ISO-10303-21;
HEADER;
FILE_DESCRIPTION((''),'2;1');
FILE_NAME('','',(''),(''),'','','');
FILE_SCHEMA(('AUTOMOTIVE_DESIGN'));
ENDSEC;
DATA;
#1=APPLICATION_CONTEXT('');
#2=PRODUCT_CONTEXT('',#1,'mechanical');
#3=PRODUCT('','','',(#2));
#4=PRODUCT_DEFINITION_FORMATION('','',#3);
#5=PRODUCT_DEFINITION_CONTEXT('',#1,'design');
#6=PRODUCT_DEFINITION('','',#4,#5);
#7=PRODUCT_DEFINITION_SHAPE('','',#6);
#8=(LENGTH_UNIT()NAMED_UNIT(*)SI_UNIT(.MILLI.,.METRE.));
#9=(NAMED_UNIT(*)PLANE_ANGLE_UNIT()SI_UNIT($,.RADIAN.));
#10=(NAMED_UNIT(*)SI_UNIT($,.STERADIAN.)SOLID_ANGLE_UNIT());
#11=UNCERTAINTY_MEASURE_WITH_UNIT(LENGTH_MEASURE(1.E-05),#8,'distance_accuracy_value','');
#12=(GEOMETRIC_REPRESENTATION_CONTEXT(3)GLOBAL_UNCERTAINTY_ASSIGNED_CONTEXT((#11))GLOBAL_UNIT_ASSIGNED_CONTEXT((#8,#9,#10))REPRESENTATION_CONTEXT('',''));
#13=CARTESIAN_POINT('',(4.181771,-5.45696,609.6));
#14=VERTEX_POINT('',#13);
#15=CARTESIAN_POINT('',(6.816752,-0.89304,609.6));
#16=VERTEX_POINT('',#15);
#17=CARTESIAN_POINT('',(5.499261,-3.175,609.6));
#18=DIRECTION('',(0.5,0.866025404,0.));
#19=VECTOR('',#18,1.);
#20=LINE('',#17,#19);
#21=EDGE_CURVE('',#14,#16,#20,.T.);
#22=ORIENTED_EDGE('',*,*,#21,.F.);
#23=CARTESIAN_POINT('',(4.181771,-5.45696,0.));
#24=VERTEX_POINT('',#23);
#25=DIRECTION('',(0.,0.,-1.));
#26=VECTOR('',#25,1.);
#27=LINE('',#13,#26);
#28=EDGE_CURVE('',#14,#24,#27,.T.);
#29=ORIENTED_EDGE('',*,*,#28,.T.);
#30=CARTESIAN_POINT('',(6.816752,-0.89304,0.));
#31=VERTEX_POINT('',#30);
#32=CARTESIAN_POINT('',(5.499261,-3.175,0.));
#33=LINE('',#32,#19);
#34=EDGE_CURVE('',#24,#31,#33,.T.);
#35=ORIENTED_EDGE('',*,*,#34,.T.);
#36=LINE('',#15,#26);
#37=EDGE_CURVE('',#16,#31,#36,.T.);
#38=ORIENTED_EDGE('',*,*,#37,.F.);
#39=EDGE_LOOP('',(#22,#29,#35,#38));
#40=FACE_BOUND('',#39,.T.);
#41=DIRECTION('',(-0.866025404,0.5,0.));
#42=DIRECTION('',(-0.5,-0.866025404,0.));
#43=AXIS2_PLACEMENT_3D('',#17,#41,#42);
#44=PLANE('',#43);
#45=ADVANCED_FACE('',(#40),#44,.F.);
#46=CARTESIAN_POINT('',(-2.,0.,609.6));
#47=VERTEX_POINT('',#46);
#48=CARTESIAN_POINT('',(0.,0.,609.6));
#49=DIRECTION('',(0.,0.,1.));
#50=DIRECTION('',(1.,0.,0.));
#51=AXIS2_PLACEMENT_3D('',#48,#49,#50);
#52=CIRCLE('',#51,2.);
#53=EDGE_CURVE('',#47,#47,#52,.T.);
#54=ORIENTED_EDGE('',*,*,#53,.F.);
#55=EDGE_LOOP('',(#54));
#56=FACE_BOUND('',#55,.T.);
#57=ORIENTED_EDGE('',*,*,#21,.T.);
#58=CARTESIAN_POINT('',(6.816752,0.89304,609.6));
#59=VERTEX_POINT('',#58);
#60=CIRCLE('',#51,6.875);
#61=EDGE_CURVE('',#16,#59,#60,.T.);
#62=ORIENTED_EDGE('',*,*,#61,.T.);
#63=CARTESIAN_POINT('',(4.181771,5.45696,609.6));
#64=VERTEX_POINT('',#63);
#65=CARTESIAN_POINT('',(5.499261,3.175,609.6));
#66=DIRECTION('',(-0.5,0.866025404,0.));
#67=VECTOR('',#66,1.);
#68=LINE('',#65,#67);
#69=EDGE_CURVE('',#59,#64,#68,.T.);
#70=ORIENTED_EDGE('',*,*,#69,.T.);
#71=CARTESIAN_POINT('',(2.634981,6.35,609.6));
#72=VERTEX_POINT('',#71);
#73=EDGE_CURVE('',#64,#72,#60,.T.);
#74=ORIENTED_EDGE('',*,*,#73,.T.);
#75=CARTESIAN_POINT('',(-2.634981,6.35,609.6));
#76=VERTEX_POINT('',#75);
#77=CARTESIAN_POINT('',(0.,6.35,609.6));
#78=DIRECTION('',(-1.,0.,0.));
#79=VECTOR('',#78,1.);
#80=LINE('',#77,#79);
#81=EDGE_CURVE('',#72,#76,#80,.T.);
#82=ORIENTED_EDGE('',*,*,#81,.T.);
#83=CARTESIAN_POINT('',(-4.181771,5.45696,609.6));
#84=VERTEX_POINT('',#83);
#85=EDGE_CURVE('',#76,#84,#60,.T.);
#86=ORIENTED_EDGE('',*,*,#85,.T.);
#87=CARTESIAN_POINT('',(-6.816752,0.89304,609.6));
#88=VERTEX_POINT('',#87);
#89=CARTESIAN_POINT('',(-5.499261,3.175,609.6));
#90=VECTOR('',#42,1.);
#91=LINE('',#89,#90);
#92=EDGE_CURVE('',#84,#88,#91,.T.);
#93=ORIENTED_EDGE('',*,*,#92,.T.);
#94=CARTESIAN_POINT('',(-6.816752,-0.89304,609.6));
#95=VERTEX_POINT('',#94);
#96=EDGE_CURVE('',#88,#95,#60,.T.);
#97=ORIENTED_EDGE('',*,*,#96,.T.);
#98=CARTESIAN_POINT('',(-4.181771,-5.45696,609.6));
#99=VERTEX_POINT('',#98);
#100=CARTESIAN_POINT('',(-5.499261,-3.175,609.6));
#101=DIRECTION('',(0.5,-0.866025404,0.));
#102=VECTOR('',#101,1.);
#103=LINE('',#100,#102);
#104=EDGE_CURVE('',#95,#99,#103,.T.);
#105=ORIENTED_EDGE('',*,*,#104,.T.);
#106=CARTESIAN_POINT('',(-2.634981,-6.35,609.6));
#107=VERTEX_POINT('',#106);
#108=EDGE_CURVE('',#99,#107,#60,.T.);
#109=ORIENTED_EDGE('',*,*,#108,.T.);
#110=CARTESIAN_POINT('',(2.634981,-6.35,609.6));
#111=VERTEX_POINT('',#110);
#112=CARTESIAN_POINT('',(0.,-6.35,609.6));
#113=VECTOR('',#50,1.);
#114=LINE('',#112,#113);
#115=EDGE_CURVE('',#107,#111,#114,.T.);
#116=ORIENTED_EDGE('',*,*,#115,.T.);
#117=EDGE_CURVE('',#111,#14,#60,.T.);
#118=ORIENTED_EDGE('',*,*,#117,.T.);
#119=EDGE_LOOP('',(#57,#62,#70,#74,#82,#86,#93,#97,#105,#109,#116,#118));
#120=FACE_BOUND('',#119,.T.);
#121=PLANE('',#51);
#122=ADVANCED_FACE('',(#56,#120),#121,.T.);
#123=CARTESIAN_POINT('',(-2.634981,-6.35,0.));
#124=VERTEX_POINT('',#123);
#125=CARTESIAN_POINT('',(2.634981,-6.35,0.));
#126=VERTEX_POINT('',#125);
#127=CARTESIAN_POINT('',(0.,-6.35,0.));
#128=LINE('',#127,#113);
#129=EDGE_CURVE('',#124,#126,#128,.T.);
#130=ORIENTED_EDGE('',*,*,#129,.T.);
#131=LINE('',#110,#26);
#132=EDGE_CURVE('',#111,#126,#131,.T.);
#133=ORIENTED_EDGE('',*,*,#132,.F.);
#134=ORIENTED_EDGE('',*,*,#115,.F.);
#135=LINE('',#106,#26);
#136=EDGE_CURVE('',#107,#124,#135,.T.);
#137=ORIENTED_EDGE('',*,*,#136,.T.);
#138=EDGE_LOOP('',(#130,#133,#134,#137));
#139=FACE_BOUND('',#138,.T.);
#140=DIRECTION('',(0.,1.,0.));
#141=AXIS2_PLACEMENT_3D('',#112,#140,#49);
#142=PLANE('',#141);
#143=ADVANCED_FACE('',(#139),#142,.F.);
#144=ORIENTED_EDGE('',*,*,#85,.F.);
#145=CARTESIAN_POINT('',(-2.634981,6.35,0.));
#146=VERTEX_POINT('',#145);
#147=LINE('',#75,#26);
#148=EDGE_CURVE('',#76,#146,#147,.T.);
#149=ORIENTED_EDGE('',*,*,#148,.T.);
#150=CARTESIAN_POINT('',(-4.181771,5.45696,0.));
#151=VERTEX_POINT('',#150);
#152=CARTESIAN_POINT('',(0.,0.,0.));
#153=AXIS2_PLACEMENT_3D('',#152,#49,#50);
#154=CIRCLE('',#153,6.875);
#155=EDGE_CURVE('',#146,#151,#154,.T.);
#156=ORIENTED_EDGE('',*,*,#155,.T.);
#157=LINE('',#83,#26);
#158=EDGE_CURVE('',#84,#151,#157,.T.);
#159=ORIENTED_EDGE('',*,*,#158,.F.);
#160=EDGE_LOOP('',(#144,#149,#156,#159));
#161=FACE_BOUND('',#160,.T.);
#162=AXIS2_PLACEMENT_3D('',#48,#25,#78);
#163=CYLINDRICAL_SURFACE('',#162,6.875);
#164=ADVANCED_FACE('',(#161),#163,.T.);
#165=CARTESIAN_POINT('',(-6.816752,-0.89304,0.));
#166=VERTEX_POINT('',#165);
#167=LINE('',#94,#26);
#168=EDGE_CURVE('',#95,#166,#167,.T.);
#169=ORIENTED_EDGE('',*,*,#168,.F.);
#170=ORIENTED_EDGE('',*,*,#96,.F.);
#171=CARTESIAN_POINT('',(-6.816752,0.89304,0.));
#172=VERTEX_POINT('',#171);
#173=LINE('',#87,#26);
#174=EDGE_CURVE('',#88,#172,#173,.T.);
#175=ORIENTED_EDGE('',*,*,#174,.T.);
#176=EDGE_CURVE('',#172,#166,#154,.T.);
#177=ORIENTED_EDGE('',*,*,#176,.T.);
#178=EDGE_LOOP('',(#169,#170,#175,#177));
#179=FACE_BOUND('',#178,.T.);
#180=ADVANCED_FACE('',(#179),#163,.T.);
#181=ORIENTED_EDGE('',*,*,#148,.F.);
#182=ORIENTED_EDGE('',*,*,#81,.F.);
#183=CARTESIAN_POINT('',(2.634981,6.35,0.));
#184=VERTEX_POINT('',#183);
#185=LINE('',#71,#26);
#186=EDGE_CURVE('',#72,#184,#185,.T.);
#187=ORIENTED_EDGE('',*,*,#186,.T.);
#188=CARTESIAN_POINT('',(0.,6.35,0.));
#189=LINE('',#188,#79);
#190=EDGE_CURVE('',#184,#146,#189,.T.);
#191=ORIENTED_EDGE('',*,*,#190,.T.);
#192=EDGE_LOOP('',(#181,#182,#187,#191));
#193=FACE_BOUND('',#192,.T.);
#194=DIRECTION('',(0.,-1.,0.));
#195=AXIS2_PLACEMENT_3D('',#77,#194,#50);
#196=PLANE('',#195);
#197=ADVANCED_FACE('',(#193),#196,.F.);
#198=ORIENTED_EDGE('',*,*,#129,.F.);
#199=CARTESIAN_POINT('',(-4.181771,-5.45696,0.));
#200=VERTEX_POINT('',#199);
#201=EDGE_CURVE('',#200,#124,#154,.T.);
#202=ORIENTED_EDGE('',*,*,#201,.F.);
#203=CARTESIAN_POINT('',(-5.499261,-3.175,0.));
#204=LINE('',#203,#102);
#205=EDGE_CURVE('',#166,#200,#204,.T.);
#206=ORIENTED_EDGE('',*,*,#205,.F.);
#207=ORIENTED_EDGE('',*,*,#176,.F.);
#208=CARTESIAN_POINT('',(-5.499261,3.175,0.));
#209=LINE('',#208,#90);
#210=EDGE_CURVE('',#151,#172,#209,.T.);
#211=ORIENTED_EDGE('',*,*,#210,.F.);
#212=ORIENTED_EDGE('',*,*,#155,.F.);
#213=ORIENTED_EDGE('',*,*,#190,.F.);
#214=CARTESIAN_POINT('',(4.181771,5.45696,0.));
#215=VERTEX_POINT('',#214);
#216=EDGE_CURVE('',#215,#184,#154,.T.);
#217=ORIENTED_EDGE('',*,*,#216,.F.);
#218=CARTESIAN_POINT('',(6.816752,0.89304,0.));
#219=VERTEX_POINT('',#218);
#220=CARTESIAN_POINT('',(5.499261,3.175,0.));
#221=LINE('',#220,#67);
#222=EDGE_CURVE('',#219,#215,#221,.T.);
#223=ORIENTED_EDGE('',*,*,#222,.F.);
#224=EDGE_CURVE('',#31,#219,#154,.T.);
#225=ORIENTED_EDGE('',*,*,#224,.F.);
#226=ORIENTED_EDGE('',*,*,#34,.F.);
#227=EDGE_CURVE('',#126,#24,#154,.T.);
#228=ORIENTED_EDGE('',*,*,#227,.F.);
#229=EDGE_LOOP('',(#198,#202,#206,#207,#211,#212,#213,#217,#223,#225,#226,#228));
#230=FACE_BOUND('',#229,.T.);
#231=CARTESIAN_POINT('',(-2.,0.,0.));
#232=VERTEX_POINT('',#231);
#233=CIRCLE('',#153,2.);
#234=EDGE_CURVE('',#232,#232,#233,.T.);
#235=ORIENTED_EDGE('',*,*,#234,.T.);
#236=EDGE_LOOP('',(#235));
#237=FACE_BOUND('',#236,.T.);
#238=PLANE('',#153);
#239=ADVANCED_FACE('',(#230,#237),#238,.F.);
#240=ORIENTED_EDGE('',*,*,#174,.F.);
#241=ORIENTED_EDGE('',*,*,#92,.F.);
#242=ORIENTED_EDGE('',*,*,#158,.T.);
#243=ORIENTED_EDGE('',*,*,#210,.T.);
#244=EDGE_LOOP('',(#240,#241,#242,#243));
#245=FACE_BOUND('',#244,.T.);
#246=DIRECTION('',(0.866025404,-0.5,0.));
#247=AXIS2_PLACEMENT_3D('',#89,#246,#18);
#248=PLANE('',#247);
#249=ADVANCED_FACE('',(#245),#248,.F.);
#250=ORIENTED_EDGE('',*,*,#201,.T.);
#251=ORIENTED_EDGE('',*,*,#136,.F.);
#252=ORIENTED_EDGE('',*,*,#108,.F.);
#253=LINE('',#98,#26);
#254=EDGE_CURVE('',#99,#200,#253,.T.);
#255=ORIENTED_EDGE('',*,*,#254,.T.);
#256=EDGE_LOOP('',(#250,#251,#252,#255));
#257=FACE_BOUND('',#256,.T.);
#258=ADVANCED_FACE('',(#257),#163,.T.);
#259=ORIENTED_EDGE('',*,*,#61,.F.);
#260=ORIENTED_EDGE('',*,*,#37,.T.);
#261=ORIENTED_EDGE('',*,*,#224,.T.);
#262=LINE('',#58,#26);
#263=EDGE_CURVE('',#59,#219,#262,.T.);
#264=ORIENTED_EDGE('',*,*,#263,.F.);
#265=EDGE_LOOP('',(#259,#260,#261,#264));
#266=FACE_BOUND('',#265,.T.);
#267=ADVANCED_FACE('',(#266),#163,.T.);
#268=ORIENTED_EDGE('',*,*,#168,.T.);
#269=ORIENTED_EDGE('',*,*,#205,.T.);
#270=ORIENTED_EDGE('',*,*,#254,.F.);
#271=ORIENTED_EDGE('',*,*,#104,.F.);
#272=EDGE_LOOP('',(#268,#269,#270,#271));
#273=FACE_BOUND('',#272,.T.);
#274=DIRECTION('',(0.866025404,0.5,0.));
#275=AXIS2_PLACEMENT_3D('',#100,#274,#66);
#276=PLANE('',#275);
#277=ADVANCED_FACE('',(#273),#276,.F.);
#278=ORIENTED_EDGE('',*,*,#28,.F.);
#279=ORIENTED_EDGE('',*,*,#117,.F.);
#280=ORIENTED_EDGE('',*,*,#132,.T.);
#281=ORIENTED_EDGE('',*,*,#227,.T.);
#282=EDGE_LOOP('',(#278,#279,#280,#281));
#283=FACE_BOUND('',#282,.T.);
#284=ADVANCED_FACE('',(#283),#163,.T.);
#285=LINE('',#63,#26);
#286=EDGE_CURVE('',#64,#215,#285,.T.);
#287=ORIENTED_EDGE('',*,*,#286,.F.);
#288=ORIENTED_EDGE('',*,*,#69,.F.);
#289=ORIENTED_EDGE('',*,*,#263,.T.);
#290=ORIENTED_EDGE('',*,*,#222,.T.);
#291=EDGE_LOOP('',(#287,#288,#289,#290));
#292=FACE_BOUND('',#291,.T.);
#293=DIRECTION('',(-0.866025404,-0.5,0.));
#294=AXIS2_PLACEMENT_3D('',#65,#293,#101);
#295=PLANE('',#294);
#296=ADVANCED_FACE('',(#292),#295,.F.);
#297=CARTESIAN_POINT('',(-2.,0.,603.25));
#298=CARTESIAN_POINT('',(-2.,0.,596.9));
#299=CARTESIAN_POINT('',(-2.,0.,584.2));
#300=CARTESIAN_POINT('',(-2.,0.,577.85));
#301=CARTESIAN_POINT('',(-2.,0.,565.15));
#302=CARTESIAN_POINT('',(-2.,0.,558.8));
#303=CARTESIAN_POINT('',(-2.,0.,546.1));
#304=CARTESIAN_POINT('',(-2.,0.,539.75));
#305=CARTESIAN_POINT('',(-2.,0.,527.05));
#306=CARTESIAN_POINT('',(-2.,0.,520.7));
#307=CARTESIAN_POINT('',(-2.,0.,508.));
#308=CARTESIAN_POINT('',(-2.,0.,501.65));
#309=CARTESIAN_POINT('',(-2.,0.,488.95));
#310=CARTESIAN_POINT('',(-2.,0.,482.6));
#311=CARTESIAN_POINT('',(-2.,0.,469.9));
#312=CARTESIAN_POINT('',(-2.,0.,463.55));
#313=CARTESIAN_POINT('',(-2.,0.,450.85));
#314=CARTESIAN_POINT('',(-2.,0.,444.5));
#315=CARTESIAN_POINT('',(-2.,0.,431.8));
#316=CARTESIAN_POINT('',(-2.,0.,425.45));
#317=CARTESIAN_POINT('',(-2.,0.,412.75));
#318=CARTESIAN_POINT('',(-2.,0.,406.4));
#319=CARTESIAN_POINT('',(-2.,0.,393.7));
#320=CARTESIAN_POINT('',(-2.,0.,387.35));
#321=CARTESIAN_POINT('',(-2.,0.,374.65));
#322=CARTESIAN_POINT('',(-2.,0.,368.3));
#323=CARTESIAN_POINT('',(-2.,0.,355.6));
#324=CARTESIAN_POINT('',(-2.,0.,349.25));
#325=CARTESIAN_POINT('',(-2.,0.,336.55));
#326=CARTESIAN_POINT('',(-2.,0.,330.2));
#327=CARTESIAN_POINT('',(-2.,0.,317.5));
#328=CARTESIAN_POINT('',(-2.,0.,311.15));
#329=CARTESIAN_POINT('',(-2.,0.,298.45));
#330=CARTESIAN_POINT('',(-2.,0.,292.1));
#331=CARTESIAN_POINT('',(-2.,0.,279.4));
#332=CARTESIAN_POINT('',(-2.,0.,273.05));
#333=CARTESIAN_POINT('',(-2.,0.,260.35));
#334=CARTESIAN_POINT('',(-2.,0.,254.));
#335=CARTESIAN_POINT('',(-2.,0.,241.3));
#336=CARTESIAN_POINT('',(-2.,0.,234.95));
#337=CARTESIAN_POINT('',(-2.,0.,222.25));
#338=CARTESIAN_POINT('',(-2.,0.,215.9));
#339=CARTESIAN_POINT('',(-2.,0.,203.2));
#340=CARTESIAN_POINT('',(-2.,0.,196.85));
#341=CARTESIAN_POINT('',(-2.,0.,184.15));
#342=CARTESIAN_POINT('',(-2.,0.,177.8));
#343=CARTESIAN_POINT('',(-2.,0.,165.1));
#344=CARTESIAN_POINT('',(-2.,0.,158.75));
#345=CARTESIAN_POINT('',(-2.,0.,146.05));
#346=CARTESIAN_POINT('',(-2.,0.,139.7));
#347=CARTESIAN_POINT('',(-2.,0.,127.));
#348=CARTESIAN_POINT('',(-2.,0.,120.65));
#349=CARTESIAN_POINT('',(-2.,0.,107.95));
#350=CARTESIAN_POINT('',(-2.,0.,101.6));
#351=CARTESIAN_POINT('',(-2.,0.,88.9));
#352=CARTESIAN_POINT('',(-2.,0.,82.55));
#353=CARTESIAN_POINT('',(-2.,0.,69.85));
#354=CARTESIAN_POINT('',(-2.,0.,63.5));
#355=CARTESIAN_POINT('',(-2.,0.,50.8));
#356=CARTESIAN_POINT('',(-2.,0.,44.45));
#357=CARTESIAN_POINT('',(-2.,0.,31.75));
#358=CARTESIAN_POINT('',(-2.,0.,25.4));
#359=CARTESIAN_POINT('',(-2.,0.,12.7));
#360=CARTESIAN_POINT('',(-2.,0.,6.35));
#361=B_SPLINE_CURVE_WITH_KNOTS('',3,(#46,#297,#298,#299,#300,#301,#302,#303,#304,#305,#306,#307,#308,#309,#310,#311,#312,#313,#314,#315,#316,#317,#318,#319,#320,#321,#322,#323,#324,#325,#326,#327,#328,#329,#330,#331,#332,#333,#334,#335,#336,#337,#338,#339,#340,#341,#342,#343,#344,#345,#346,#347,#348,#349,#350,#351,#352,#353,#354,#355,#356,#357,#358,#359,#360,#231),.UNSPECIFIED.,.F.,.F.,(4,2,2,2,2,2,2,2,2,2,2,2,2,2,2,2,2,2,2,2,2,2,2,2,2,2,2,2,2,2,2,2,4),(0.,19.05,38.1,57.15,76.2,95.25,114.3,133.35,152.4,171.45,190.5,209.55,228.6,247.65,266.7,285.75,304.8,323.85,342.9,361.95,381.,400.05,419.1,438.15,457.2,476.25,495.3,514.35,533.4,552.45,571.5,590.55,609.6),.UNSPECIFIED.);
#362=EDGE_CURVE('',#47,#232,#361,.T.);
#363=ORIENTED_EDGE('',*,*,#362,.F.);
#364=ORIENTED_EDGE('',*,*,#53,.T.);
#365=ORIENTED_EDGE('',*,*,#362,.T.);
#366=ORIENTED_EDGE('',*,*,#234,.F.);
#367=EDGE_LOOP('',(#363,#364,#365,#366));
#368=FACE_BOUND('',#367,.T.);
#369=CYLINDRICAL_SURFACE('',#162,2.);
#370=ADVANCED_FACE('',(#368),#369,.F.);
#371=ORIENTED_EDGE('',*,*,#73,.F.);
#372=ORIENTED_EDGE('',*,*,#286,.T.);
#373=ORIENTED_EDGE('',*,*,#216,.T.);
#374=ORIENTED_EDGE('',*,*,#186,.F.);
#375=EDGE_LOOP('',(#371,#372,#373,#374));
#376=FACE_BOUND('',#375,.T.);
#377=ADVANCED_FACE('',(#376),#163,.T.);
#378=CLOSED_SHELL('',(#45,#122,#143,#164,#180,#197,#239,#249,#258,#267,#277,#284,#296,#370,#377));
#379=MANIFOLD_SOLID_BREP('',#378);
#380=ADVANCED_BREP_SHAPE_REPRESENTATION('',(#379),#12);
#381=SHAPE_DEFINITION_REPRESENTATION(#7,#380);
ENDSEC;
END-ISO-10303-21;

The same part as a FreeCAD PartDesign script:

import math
import FreeCAD as App
import Part
import Sketcher
from FreeCAD import Vector
Q = App.Units.Quantity

doc = App.newDocument("Part")
body = doc.addObject("PartDesign::Body", "Body")

# Sketch on XY plane
sketch1 = body.newObject("Sketcher::SketchObject", "Sketch")
sketch1.AttachmentSupport = (doc.getObject("XY_Plane"), [""])
sketch1.MapMode = "FlatFace"
sketch1.addGeometry([
    Part.ArcOfCircle(Part.Circle(Vector(0, 0, 0), Vector(0, 0, 1), 6.9), math.radians(52.54), math.radians(67.46)),  # 0
    Part.LineSegment(Vector(2.6, 6.3, 0), Vector(-2.6, 6.3, 0)),  # 1
    Part.ArcOfCircle(Part.Circle(Vector(0, 0, 0), Vector(0, 0, 1), 6.9), math.radians(112.54), math.radians(127.46)),  # 2
    Part.LineSegment(Vector(-4.2, 5.5, 0), Vector(-6.8, 0.9, 0)),  # 3
    Part.ArcOfCircle(Part.Circle(Vector(0, 0, 0), Vector(0, 0, 1), 6.9), math.radians(172.54), math.radians(187.46)),  # 4
    Part.LineSegment(Vector(-6.8, -0.9, 0), Vector(-4.2, -5.5, 0)),  # 5
    Part.ArcOfCircle(Part.Circle(Vector(0, 0, 0), Vector(0, 0, 1), 6.9), math.radians(-127.46), math.radians(-112.54)),  # 6
    Part.LineSegment(Vector(-2.6, -6.3, 0), Vector(2.6, -6.3, 0)),  # 7
    Part.ArcOfCircle(Part.Circle(Vector(0, 0, 0), Vector(0, 0, 1), 6.9), math.radians(-67.46), math.radians(-52.54)),  # 8
    Part.LineSegment(Vector(4.2, -5.5, 0), Vector(6.8, -0.9, 0)),  # 9
    Part.ArcOfCircle(Part.Circle(Vector(0, 0, 0), Vector(0, 0, 1), 6.9), math.radians(-7.46), math.radians(0)),  # 10
    Part.ArcOfCircle(Part.Circle(Vector(0, 0, 0), Vector(0, 0, 1), 6.9), math.radians(0), math.radians(7.46)),  # 11
    Part.LineSegment(Vector(6.8, 0.9, 0), Vector(4.2, 5.5, 0)),  # 12
    Part.Circle(Vector(0, 0, 0), Vector(0, 0, 1), 2),  # 13
], False)
sketch1.addConstraint([
    Sketcher.Constraint("Coincident", 0, 2, 1, 1),
    Sketcher.Constraint("Coincident", 1, 2, 2, 1),
    Sketcher.Constraint("Coincident", 2, 2, 3, 1),
    Sketcher.Constraint("Coincident", 3, 2, 4, 1),
    Sketcher.Constraint("Coincident", 4, 2, 5, 1),
    Sketcher.Constraint("Coincident", 5, 2, 6, 1),
    Sketcher.Constraint("Coincident", 6, 2, 7, 1),
    Sketcher.Constraint("Coincident", 7, 2, 8, 1),
    Sketcher.Constraint("Coincident", 8, 2, 9, 1),
    Sketcher.Constraint("Coincident", 9, 2, 10, 1),
    Sketcher.Constraint("Tangent", 10, 2, 11, 1),
    Sketcher.Constraint("Coincident", 11, 2, 12, 1),
    Sketcher.Constraint("Coincident", 12, 2, 0, 1),
    Sketcher.Constraint("Horizontal", 1),
    Sketcher.Constraint("Horizontal", 7),
    Sketcher.Constraint("Coincident", 0, 3, -1, 1),
    Sketcher.Constraint("Coincident", 2, 3, -1, 1),
    Sketcher.Constraint("Coincident", 4, 3, -1, 1),
    Sketcher.Constraint("Coincident", 6, 3, -1, 1),
    Sketcher.Constraint("Coincident", 8, 3, -1, 1),
    Sketcher.Constraint("Coincident", 10, 3, -1, 1),
    Sketcher.Constraint("Coincident", 13, 3, -1, 1),
    Sketcher.Constraint("Equal", 0, 2),
    Sketcher.Constraint("Equal", 2, 4),
    Sketcher.Constraint("Equal", 4, 6),
    Sketcher.Constraint("Equal", 6, 8),
    Sketcher.Constraint("Equal", 8, 10),
    Sketcher.Constraint("Equal", 10, 11),
    Sketcher.Constraint("PointOnObject", 10, 2, -1),
    Sketcher.Constraint("Parallel", 3, 9),
    Sketcher.Constraint("Parallel", 5, 12),
    Sketcher.Constraint("Horizontal", 5, 2, 8, 2),
    Sketcher.Constraint("Horizontal", 4, 2, 9, 2),
    Sketcher.Constraint("Horizontal", 3, 2, 11, 2),
    Sketcher.Constraint("Vertical", 3, 2, 4, 2),
    Sketcher.Constraint("Vertical", 1, 2, 6, 2),
    Sketcher.Constraint("Diameter", 13, 4.0),
    Sketcher.Constraint("Angle", 3, Q("-120 deg")),
    Sketcher.Constraint("Radius", 0, 6.875),
    Sketcher.Constraint("DistanceY", -1, 1, 0, 2, 6.35),
    Sketcher.Constraint("Distance", 3, 5.269962),
])
pad1 = body.newObject("PartDesign::Pad", "Pad")
pad1.Profile = sketch1
pad1.Length = 609.6

doc.recompute()
